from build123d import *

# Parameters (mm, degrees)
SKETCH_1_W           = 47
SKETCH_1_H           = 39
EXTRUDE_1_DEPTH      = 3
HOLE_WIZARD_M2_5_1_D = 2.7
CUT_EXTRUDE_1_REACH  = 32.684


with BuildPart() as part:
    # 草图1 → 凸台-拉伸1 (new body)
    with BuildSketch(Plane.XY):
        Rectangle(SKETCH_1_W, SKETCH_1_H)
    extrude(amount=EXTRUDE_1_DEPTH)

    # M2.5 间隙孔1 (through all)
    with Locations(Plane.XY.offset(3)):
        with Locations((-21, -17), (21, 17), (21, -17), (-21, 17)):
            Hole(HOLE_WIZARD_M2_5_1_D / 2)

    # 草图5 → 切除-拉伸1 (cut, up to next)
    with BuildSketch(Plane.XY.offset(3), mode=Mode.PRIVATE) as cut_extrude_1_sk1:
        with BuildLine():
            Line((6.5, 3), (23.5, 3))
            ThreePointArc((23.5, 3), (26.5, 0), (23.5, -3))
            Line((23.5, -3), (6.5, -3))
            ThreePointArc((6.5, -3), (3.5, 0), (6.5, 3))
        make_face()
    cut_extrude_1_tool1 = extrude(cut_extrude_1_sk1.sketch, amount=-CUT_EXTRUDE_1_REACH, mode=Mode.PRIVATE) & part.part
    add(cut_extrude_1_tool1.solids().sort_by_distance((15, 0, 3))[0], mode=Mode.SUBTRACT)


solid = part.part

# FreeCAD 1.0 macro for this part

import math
import FreeCAD as App
import Part
import Sketcher
Q = App.Units.Quantity

doc = App.newDocument("Part")
body = doc.addObject("PartDesign::Body", "Body")

sketch1 = body.newObject("Sketcher::SketchObject", "Sketch")
sketch1.AttachmentSupport = (doc.getObject("XY_Plane"), [""])
sketch1.MapMode = "FlatFace"
sketch1.addGeometry(Part.LineSegment(App.Vector(-23.5, 19.5, 0), App.Vector(-23.5, -19.5, 0)), False)
sketch1.addGeometry(Part.LineSegment(App.Vector(-23.5, -19.5, 0), App.Vector(23.5, -19.5, 0)), False)
sketch1.addGeometry(Part.LineSegment(App.Vector(23.5, -19.5, 0), App.Vector(23.5, 19.5, 0)), False)
sketch1.addGeometry(Part.LineSegment(App.Vector(23.5, 19.5, 0), App.Vector(-23.5, 19.5, 0)), False)
sketch1.addConstraint(Sketcher.Constraint("Coincident", 0, 2, 1, 1))
sketch1.addConstraint(Sketcher.Constraint("Coincident", 1, 2, 2, 1))
sketch1.addConstraint(Sketcher.Constraint("Coincident", 2, 2, 3, 1))
sketch1.addConstraint(Sketcher.Constraint("Coincident", 3, 2, 0, 1))
sketch1.addConstraint(Sketcher.Constraint("Vertical", 0))
sketch1.addConstraint(Sketcher.Constraint("Horizontal", 1))
sketch1.addConstraint(Sketcher.Constraint("Vertical", 2))
sketch1.addConstraint(Sketcher.Constraint("Horizontal", 3))
sketch1.addConstraint(Sketcher.Constraint("Symmetric", 0, 2, 2, 2, -1, 1))
sketch1.addConstraint(Sketcher.Constraint("DistanceX", 1, 1, 1, 2, Q("47 mm")))
sketch1.addConstraint(Sketcher.Constraint("DistanceY", 0, 2, 0, 1, Q("39 mm")))
pad1 = body.newObject("PartDesign::Pad", "Pad")
pad1.Profile = sketch1
pad1.Length = 3

sketch2 = body.newObject("Sketcher::SketchObject", "Sketch001")
sketch2.AttachmentSupport = (doc.getObject("XY_Plane"), [""])
sketch2.MapMode = "FlatFace"
sketch2.AttachmentOffset = App.Placement(App.Vector(0, 0, 3), App.Rotation())
sketch2.addGeometry(Part.Circle(App.Vector(-21, -17, 0), App.Vector(0, 0, 1), 1.35), False)
sketch2.addGeometry(Part.Circle(App.Vector(21, 17, 0), App.Vector(0, 0, 1), 1.35), False)
sketch2.addGeometry(Part.Circle(App.Vector(21, -17, 0), App.Vector(0, 0, 1), 1.35), False)
sketch2.addGeometry(Part.Circle(App.Vector(-21, 17, 0), App.Vector(0, 0, 1), 1.35), False)
sketch2.addConstraint(Sketcher.Constraint("Equal", 0, 1))
sketch2.addConstraint(Sketcher.Constraint("Equal", 1, 2))
sketch2.addConstraint(Sketcher.Constraint("Equal", 2, 3))
sketch2.addConstraint(Sketcher.Constraint("Symmetric", 0, 3, 1, 3, -1, 1))
sketch2.addConstraint(Sketcher.Constraint("Symmetric", 2, 3, 3, 3, -1, 1))
sketch2.addConstraint(Sketcher.Constraint("Symmetric", 0, 3, 2, 3, -2))
sketch2.addConstraint(Sketcher.Constraint("Diameter", 0, Q("2.7 mm")))
sketch2.addConstraint(Sketcher.Constraint("DistanceX", 0, 3, -1, 1, Q("21 mm")))
sketch2.addConstraint(Sketcher.Constraint("DistanceY", 0, 3, -1, 1, Q("17 mm")))
doc.recompute()
hole = body.newObject("PartDesign::Hole", "Hole")
hole.Profile = sketch2
hole.ThreadType = "None"
hole.Diameter = 2.7
hole.DepthType = "ThroughAll"

sketch3 = body.newObject("Sketcher::SketchObject", "Sketch002")
sketch3.AttachmentSupport = (doc.getObject("XY_Plane"), [""])
sketch3.MapMode = "FlatFace"
sketch3.AttachmentOffset = App.Placement(App.Vector(0, 0, 3), App.Rotation())
sketch3.addGeometry(Part.LineSegment(App.Vector(23.5, 3, 0), App.Vector(6.5, 3, 0)), False)
sketch3.addGeometry(Part.ArcOfCircle(Part.Circle(App.Vector(6.5, 0, 0), App.Vector(0, 0, 1), 3), math.radians(90), math.radians(270)), False)
sketch3.addGeometry(Part.LineSegment(App.Vector(6.5, -3, 0), App.Vector(23.5, -3, 0)), False)
sketch3.addGeometry(Part.ArcOfCircle(Part.Circle(App.Vector(23.5, 0, 0), App.Vector(0, 0, 1), 3), math.radians(-90), math.radians(90)), False)
sketch3.addConstraint(Sketcher.Constraint("Tangent", 0, 2, 1, 1))
sketch3.addConstraint(Sketcher.Constraint("Tangent", 1, 2, 2, 1))
sketch3.addConstraint(Sketcher.Constraint("Tangent", 2, 2, 3, 1))
sketch3.addConstraint(Sketcher.Constraint("Tangent", 3, 2, 0, 1))
sketch3.addConstraint(Sketcher.Constraint("Horizontal", 0))
sketch3.addConstraint(Sketcher.Constraint("Horizontal", 2))
sketch3.addConstraint(Sketcher.Constraint("PointOnObject", 1, 3, -1))
sketch3.addConstraint(Sketcher.Constraint("Radius", 1, Q("3 mm")))
sketch3.addConstraint(Sketcher.Constraint("DistanceX", 0, 2, 0, 1, Q("17 mm")))
sketch3.addConstraint(Sketcher.Constraint("DistanceX", -1, 1, 1, 3, Q("6.5 mm")))
pocket1 = body.newObject("PartDesign::Pocket", "Pocket")
pocket1.Profile = sketch3
pocket1.Type = "UpToFirst"

doc.recompute()
